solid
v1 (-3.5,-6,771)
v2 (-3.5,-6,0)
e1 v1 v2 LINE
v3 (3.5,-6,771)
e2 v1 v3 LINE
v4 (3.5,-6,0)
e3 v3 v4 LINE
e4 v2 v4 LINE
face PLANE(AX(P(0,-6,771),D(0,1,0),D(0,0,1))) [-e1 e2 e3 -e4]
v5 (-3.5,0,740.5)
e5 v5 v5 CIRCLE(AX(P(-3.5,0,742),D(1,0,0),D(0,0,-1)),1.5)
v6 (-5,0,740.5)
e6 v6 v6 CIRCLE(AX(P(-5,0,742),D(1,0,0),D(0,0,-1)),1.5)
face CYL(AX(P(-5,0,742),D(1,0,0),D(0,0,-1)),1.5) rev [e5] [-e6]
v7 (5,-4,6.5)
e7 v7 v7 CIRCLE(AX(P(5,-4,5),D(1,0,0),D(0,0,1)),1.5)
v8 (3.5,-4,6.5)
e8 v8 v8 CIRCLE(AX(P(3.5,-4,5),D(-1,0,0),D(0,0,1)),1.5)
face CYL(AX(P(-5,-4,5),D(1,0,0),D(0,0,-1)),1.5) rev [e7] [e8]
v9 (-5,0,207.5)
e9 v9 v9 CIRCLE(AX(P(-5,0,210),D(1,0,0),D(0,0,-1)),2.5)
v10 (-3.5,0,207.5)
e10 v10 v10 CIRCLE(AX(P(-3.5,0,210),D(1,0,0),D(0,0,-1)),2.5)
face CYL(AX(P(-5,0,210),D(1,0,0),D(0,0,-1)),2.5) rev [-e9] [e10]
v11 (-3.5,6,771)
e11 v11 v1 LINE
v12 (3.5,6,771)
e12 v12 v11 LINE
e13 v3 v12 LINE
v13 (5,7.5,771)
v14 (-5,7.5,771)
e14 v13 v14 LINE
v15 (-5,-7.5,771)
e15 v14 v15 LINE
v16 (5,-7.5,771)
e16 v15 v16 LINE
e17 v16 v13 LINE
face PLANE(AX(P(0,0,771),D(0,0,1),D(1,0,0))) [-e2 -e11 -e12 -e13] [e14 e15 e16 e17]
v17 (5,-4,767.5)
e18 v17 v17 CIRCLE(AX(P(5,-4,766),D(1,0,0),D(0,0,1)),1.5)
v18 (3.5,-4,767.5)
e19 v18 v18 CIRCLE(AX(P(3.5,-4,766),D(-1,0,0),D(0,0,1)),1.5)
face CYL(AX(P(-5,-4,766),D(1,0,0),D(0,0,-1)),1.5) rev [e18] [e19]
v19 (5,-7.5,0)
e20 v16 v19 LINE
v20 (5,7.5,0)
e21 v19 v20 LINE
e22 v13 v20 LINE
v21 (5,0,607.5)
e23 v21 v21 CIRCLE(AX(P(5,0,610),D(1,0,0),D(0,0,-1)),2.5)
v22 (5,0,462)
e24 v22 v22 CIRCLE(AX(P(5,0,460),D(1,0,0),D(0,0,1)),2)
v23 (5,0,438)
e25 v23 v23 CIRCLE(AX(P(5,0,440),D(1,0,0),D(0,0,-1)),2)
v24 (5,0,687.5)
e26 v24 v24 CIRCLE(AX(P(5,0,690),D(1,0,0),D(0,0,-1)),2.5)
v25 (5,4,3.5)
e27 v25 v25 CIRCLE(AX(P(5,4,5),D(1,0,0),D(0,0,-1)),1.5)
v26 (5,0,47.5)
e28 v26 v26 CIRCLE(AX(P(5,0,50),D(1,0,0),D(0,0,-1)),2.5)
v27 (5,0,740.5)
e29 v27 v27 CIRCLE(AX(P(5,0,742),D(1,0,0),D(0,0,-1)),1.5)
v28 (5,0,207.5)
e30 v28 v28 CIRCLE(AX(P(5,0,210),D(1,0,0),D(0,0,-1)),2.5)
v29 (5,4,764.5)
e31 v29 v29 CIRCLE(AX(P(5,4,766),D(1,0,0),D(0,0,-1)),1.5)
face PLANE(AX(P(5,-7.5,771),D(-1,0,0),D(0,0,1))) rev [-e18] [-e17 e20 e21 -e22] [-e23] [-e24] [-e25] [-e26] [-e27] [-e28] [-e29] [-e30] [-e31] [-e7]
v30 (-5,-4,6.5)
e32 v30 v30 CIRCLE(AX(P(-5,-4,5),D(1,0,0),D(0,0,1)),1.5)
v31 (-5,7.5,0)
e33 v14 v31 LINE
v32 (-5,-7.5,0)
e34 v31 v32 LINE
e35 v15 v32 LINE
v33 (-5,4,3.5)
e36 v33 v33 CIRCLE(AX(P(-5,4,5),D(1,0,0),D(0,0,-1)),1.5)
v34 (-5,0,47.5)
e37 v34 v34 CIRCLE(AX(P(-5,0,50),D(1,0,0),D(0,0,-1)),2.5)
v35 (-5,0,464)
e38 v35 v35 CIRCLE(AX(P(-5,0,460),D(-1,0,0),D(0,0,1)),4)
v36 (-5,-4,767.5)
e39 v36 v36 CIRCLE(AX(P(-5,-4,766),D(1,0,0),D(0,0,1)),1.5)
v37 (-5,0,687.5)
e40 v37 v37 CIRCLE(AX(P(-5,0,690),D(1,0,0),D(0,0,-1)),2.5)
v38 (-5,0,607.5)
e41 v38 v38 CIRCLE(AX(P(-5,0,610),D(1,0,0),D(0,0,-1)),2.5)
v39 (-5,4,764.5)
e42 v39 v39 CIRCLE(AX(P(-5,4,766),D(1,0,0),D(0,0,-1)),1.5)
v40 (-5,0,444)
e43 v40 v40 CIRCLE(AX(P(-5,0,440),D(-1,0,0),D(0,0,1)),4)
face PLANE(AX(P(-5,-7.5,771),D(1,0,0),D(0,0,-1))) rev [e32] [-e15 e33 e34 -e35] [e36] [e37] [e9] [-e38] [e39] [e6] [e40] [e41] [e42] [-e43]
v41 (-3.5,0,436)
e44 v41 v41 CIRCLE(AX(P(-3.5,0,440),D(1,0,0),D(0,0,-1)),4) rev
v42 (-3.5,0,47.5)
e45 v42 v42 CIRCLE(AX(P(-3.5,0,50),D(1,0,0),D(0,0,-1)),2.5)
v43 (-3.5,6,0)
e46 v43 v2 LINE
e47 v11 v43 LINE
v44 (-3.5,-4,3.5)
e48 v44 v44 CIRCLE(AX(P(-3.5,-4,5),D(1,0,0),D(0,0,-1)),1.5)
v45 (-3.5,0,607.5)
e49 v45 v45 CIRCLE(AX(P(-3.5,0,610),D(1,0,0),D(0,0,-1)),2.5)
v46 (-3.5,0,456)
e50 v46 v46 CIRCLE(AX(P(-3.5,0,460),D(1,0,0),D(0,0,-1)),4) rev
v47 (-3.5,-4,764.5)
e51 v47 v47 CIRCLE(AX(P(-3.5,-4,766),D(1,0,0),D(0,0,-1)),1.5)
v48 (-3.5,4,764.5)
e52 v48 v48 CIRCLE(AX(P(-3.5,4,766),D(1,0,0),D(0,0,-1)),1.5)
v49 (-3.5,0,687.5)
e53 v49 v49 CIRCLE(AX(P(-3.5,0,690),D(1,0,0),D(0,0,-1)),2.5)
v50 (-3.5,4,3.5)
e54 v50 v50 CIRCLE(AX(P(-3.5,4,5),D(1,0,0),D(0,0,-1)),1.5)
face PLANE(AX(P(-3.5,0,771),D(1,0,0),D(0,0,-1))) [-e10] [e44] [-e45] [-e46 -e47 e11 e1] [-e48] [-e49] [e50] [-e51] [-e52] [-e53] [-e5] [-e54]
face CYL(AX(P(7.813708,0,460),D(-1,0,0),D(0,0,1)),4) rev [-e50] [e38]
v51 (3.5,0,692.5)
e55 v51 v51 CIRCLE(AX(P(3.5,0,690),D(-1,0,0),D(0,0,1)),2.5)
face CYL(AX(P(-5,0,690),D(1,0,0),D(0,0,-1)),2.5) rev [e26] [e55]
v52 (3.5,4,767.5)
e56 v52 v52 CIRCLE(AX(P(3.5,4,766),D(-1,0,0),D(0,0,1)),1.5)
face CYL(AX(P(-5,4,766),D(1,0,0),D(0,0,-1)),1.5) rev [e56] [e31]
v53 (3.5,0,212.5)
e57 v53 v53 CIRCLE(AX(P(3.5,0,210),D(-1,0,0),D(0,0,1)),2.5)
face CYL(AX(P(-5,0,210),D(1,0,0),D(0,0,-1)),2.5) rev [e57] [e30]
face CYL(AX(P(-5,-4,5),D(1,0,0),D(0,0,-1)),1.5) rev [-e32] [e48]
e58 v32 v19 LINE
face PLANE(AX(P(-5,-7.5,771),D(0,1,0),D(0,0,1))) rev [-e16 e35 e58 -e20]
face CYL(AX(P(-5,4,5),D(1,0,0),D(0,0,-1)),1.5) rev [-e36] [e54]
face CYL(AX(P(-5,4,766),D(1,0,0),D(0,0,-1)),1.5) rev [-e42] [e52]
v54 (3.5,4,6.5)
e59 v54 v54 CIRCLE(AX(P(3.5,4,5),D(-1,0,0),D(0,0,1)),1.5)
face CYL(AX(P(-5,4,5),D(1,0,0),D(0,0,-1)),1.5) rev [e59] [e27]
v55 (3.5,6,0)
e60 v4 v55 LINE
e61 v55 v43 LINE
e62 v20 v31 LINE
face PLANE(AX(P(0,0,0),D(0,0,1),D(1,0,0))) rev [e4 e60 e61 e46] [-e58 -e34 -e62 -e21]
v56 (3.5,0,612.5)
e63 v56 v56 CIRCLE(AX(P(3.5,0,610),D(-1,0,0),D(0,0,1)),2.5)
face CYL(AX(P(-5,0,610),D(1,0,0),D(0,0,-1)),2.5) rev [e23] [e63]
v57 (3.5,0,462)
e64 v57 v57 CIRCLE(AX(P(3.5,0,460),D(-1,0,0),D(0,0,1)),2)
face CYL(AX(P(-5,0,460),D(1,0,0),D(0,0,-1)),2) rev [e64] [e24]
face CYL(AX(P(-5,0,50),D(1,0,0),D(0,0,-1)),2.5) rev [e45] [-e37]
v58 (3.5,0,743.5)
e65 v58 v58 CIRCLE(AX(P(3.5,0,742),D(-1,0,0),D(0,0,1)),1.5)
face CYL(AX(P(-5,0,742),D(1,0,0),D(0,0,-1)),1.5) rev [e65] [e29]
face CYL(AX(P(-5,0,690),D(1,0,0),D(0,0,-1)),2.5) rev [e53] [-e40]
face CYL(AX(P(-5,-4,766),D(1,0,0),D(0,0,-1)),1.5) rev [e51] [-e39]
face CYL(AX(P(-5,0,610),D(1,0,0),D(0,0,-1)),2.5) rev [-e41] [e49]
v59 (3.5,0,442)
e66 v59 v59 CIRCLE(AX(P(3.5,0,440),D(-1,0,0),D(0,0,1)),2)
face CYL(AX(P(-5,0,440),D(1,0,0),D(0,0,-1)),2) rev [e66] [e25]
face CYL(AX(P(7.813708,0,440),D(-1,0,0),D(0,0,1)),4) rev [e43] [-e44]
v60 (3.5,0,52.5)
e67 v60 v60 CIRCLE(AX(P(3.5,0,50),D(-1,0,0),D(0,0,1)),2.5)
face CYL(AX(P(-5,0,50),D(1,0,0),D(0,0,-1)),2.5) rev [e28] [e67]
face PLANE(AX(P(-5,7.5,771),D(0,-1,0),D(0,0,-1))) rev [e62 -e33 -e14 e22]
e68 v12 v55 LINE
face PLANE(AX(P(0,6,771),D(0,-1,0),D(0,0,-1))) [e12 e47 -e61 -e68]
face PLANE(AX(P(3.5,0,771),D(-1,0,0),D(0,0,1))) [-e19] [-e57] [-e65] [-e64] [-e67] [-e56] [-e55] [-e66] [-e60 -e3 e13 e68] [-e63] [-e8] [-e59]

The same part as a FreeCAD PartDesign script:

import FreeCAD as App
import Part
import Sketcher
Q = App.Units.Quantity


def add_polygon(sketch, points):
    """Adds a closed chain of lines whose ends are joined by coincident constraints."""
    first, n = sketch.GeometryCount, len(points)
    for a, b in zip(points, points[1:] + points[:1]):
        sketch.addGeometry(Part.LineSegment(App.Vector(*a, 0), App.Vector(*b, 0)), False)
    for i in range(n):
        sketch.addConstraint(Sketcher.Constraint("Coincident", first + i, 2, first + (i + 1) % n, 1))

doc = App.newDocument("Part")
body = doc.addObject("PartDesign::Body", "Body")

# Sketch on XY plane
sketch1 = doc.addObject("Sketcher::SketchObject", "Sketch")
body.addObject(sketch1)
sketch1.AttachmentSupport = (doc.XY_Plane, [""])
sketch1.MapMode = "FlatFace"
add_polygon(sketch1, [(-5, 7.5), (-5, -7.5), (5, -7.5), (5, 7.5)])  # lines 0-3
add_polygon(sketch1, [(3.5, -6), (-3.5, -6), (-3.5, 6), (3.5, 6)])  # lines 4-7
sketch1.addConstraint([
    Sketcher.Constraint("Vertical", 0),
    Sketcher.Constraint("Horizontal", 1),
    Sketcher.Constraint("Vertical", 2),
    Sketcher.Constraint("Horizontal", 3),
    Sketcher.Constraint("Horizontal", 4),
    Sketcher.Constraint("Vertical", 5),
    Sketcher.Constraint("Horizontal", 6),
    Sketcher.Constraint("Vertical", 7),
    Sketcher.Constraint("Symmetric", 0, 2, 2, 2, -1, 1),
    Sketcher.Constraint("Symmetric", 4, 2, 6, 2, -1, 1),
    Sketcher.Constraint("DistanceX", 1, 1, 1, 2, Q("10 mm")),
    Sketcher.Constraint("DistanceX", 4, 2, 4, 1, Q("7 mm")),
    Sketcher.Constraint("DistanceY", 0, 2, 0, 1, Q("15 mm")),
    Sketcher.Constraint("DistanceY", 5, 1, 5, 2, Q("12 mm")),
])
pad1 = doc.addObject("PartDesign::Pad", "Pad")
body.addObject(pad1)
pad1.Profile = sketch1
pad1.Length = 771

# Sketch on YZ plane
sketch2 = doc.addObject("Sketcher::SketchObject", "Sketch001")
body.addObject(sketch2)
sketch2.AttachmentSupport = (doc.YZ_Plane, [""])
sketch2.MapMode = "FlatFace"
sketch2.AttachmentOffset = App.Placement(App.Vector(0, 0, 5), App.Rotation())
sketch2.addGeometry([
    Part.Circle(App.Vector(4, 5, 0), App.Vector(0, 0, 1), 1.5),  # 0
    Part.Circle(App.Vector(-4, 5, 0), App.Vector(0, 0, 1), 1.5),  # 1
    Part.Circle(App.Vector(4, 766, 0), App.Vector(0, 0, 1), 1.5),  # 2
    Part.Circle(App.Vector(-4, 766, 0), App.Vector(0, 0, 1), 1.5),  # 3
    Part.Circle(App.Vector(0, 50, 0), App.Vector(0, 0, 1), 2.5),  # 4
    Part.Circle(App.Vector(0, 742, 0), App.Vector(0, 0, 1), 1.5),  # 5
    Part.Circle(App.Vector(0, 690, 0), App.Vector(0, 0, 1), 2.5),  # 6
    Part.Circle(App.Vector(0, 440, 0), App.Vector(0, 0, 1), 2),  # 7
    Part.Circle(App.Vector(0, 460, 0), App.Vector(0, 0, 1), 2),  # 8
    Part.Circle(App.Vector(0, 610, 0), App.Vector(0, 0, 1), 2.5),  # 9
    Part.Circle(App.Vector(0, 210, 0), App.Vector(0, 0, 1), 2.5),  # 10
], False)
sketch2.addConstraint([
    Sketcher.Constraint("Equal", 0, 1),
    Sketcher.Constraint("Equal", 1, 2),
    Sketcher.Constraint("Equal", 2, 3),
    Sketcher.Constraint("Equal", 3, 5),
    Sketcher.Constraint("Equal", 4, 6),
    Sketcher.Constraint("Equal", 7, 8),
    Sketcher.Constraint("Equal", 6, 9),
    Sketcher.Constraint("Equal", 9, 10),
    Sketcher.Constraint("Symmetric", 0, 3, 1, 3, -2),
    Sketcher.Constraint("Symmetric", 2, 3, 3, 3, -2),
    Sketcher.Constraint("PointOnObject", 4, 3, -2),
    Sketcher.Constraint("PointOnObject", 5, 3, -2),
    Sketcher.Constraint("PointOnObject", 6, 3, -2),
    Sketcher.Constraint("PointOnObject", 7, 3, -2),
    Sketcher.Constraint("PointOnObject", 8, 3, -2),
    Sketcher.Constraint("PointOnObject", 9, 3, -2),
    Sketcher.Constraint("PointOnObject", 10, 3, -2),
    Sketcher.Constraint("Vertical", 0, 3, 2, 3),
    Sketcher.Constraint("Diameter", 0, Q("3 mm")),
    Sketcher.Constraint("Diameter", 4, Q("5 mm")),
    Sketcher.Constraint("Diameter", 7, Q("4 mm")),
    Sketcher.Constraint("DistanceX", -1, 1, 0, 3, Q("4 mm")),
    Sketcher.Constraint("DistanceY", -1, 1, 0, 3, Q("5 mm")),
    Sketcher.Constraint("DistanceY", -1, 1, 2, 3, Q("766 mm")),
    Sketcher.Constraint("DistanceY", -1, 1, 4, 3, Q("50 mm")),
    Sketcher.Constraint("DistanceY", -1, 1, 5, 3, Q("742 mm")),
    Sketcher.Constraint("DistanceY", -1, 1, 6, 3, Q("690 mm")),
    Sketcher.Constraint("DistanceY", -1, 1, 7, 3, Q("440 mm")),
    Sketcher.Constraint("DistanceY", -1, 1, 8, 3, Q("460 mm")),
    Sketcher.Constraint("DistanceY", -1, 1, 9, 3, Q("610 mm")),
    Sketcher.Constraint("DistanceY", -1, 1, 10, 3, Q("210 mm")),
])
pocket1 = doc.addObject("PartDesign::Pocket", "Pocket")
body.addObject(pocket1)
pocket1.Profile = sketch2
pocket1.Type = "ThroughAll"

# Sketch on YZ plane
sketch3 = doc.addObject("Sketcher::SketchObject", "Sketch002")
body.addObject(sketch3)
sketch3.AttachmentSupport = (doc.YZ_Plane, [""])
sketch3.MapMode = "FlatFace"
sketch3.AttachmentOffset = App.Placement(App.Vector(0, 0, -5), App.Rotation())
sketch3.addGeometry([
    Part.Circle(App.Vector(0, 440, 0), App.Vector(0, 0, 1), 4),
    Part.Circle(App.Vector(0, 460, 0), App.Vector(0, 0, 1), 4),
], False)
sketch3.addConstraint([
    Sketcher.Constraint("Equal", 0, 1),
    Sketcher.Constraint("PointOnObject", 0, 3, -2),
    Sketcher.Constraint("PointOnObject", 1, 3, -2),
    Sketcher.Constraint("Diameter", 0, Q("8 mm")),
    Sketcher.Constraint("DistanceY", -1, 1, 0, 3, Q("440 mm")),
    Sketcher.Constraint("DistanceY", -1, 1, 1, 3, Q("460 mm")),
])
pocket2 = doc.addObject("PartDesign::Pocket", "Pocket001")
body.addObject(pocket2)
pocket2.Profile = sketch3
pocket2.Length = 1.5
pocket2.Reversed = True

doc.recompute()
